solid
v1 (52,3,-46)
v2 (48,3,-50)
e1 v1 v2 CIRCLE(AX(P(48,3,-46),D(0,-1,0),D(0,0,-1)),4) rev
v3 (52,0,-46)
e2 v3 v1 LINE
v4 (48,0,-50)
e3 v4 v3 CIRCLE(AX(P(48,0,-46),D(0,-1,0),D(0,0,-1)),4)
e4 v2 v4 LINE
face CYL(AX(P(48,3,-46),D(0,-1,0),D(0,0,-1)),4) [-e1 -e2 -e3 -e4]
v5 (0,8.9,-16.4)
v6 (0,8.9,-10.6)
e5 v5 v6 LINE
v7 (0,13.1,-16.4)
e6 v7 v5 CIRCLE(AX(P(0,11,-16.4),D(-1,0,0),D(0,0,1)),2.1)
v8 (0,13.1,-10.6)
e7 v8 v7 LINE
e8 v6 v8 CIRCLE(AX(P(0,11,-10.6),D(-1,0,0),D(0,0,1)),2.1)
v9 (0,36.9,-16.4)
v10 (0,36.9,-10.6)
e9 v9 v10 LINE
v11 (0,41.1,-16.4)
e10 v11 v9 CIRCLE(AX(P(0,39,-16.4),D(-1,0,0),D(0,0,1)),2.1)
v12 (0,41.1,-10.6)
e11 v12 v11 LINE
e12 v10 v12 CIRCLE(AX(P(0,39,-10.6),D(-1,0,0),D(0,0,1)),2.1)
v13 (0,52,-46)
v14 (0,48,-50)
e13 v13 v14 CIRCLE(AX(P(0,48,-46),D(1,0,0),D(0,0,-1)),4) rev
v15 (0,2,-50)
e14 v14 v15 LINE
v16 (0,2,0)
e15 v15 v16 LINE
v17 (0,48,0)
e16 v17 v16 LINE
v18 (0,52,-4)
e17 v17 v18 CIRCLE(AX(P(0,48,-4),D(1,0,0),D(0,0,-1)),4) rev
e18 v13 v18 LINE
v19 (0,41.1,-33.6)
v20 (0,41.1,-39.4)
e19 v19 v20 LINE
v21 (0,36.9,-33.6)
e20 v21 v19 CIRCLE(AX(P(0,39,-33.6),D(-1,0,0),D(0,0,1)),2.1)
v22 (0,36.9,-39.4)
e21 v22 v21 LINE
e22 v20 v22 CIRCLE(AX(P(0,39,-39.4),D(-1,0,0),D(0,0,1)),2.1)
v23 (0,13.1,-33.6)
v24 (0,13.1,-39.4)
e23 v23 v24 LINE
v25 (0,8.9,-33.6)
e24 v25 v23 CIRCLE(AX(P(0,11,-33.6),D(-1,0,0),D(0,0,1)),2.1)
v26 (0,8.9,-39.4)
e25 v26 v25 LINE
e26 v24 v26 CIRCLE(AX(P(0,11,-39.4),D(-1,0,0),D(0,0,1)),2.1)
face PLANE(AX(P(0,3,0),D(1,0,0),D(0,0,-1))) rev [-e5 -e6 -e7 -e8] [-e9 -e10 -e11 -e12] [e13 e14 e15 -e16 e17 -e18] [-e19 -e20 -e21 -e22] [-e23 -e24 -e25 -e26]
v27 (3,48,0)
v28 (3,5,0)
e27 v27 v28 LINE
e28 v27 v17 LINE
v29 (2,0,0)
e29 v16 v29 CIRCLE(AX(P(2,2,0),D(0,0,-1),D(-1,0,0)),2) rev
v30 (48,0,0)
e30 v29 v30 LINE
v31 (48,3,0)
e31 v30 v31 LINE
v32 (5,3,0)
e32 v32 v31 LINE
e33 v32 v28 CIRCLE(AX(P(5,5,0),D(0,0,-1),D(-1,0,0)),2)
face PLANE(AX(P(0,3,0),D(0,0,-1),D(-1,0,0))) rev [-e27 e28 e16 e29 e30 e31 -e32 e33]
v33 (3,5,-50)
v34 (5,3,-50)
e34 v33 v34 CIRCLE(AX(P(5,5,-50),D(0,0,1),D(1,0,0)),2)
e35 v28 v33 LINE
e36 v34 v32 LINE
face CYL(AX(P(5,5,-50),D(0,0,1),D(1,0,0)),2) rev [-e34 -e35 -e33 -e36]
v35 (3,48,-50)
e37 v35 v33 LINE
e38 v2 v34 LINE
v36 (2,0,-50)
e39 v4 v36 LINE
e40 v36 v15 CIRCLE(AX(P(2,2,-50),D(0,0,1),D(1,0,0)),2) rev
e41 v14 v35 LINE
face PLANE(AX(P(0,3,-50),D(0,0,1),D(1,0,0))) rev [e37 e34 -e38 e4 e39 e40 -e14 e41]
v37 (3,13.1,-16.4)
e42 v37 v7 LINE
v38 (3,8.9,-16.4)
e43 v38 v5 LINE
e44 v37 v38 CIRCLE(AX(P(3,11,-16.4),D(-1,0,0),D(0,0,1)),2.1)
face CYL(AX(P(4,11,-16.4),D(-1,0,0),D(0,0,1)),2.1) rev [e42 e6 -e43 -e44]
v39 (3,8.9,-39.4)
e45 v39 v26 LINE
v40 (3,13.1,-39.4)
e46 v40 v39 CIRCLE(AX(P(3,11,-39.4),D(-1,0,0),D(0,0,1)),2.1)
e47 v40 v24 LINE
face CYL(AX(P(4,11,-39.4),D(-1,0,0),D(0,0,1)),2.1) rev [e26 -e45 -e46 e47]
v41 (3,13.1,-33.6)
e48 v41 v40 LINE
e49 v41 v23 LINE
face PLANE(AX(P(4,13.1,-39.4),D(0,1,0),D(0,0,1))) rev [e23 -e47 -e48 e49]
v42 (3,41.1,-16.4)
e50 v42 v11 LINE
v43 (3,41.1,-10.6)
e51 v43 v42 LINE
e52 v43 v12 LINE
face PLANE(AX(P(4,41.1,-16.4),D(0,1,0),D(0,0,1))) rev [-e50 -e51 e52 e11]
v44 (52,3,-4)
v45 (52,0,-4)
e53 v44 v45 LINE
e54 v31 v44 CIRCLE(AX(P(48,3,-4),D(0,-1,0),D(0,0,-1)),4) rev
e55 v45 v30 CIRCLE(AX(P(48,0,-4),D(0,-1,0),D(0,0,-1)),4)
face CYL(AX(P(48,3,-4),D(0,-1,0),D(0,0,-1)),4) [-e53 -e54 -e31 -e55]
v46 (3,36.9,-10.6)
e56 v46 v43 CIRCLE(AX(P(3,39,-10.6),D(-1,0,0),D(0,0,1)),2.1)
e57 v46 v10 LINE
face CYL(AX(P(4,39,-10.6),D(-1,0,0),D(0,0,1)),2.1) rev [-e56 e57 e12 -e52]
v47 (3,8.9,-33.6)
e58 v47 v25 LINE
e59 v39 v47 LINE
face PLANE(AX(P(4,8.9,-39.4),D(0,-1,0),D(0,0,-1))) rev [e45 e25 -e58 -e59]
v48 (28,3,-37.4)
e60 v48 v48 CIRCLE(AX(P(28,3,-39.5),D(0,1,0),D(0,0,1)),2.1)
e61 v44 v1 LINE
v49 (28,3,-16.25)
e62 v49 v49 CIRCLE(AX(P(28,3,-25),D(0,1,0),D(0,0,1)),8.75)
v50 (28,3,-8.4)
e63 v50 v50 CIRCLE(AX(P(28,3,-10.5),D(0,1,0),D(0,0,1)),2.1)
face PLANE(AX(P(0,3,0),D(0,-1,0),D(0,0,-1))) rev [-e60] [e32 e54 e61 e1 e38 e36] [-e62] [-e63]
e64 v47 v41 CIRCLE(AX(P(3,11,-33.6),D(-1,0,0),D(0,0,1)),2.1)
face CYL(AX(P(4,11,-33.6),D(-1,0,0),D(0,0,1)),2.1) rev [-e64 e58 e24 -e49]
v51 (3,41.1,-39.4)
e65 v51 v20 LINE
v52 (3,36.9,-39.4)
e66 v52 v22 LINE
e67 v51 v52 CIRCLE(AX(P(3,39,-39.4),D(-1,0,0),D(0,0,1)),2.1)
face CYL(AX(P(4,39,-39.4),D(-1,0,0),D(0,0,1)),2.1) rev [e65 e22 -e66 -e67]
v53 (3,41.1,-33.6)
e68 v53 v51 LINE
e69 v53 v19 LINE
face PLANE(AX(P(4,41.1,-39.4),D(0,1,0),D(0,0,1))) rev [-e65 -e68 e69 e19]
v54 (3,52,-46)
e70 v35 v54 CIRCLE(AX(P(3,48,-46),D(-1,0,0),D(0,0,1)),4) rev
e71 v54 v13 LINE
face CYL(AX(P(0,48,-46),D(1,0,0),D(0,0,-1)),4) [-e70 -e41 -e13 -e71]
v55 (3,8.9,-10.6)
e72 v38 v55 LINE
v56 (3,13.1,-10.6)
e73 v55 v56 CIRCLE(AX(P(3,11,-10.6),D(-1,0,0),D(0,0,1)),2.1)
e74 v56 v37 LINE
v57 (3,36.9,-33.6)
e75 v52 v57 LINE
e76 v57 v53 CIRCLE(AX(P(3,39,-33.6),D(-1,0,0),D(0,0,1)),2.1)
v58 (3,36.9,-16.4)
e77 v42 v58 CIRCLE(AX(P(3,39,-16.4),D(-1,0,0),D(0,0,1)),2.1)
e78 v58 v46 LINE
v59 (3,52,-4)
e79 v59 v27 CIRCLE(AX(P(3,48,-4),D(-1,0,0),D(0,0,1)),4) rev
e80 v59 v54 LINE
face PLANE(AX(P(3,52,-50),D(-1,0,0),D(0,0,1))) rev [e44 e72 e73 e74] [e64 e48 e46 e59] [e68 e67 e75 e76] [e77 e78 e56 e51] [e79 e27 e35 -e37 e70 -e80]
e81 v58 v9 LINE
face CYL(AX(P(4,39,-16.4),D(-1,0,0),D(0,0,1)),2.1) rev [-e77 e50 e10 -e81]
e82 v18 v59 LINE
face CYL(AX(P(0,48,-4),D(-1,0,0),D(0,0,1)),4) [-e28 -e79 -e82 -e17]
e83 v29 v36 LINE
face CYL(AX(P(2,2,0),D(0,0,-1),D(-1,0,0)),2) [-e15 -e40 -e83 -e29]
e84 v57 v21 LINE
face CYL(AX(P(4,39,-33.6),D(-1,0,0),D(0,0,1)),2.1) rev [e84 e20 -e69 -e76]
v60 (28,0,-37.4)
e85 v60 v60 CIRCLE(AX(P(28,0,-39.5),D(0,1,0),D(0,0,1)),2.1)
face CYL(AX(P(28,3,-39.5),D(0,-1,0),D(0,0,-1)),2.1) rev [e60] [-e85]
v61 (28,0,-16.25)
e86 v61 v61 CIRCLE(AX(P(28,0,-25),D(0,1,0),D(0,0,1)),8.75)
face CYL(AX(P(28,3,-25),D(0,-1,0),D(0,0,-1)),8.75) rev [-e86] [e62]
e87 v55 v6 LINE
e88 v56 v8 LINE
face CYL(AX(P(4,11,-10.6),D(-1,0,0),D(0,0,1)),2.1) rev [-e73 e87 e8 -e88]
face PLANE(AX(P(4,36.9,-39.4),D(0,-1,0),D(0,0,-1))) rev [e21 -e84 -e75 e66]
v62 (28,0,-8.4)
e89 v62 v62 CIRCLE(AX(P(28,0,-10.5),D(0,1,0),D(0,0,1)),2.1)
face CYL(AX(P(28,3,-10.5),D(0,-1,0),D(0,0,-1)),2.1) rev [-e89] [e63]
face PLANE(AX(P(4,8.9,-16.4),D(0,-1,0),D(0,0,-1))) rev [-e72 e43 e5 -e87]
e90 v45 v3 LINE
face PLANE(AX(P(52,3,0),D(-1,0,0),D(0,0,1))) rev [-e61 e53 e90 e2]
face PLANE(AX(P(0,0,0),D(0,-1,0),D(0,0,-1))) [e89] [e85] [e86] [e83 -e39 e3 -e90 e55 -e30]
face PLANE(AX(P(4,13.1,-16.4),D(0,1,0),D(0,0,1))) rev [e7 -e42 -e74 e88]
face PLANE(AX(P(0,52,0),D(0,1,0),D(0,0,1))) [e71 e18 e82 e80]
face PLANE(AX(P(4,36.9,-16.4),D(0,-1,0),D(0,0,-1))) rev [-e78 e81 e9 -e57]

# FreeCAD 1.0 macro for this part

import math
import FreeCAD as App
import Part
import Sketcher

V = App.Vector


def edges_at(feature, points):
    """Names of the edges that pass closest to the given points."""
    edges = feature.Shape.Edges
    near = lambda p: min(range(len(edges)), key=lambda i: edges[i].distToShape(Part.Vertex(*p))[0])
    return sorted({f"Edge{near(p) + 1}" for p in points})


def add_polygon(sketch, points):
    """Adds a closed chain of lines whose ends are joined by coincident constraints."""
    first, n = sketch.GeometryCount, len(points)
    for a, b in zip(points, points[1:] + points[:1]):
        sketch.addGeometry(Part.LineSegment(App.Vector(*a, 0), App.Vector(*b, 0)), False)
    for i in range(n):
        sketch.addConstraint(Sketcher.Constraint("Coincident", first + i, 2, first + (i + 1) % n, 1))

doc = App.newDocument("Part")
body = doc.addObject("PartDesign::Body", "Body")

# Sketch on XZ plane
sketch1 = doc.addObject("Sketcher::SketchObject", "Sketch")
body.addObject(sketch1)
sketch1.AttachmentSupport = (doc.XZ_Plane, [""])
sketch1.MapMode = "FlatFace"
add_polygon(sketch1, [(0, -50), (0, 0), (52, 0), (52, -50)])  # lines 0-3
sketch1.addGeometry(Part.Circle(V(28, -10.5, 0), V(0, 0, 1), 2.1), False)  # 4
sketch1.addGeometry(Part.Circle(V(28, -25, 0), V(0, 0, 1), 8.8), False)  # 5
sketch1.addGeometry(Part.Circle(V(28, -39.5, 0), V(0, 0, 1), 2.1), False)  # 6
sketch1.addConstraint(Sketcher.Constraint("Vertical", 0))
sketch1.addConstraint(Sketcher.Constraint("Horizontal", 1))
sketch1.addConstraint(Sketcher.Constraint("Vertical", 2))
sketch1.addConstraint(Sketcher.Constraint("Horizontal", 3))
sketch1.addConstraint(Sketcher.Constraint("Coincident", 0, 2, -1, 1))
sketch1.addConstraint(Sketcher.Constraint("Equal", 4, 6))
sketch1.addConstraint(Sketcher.Constraint("Vertical", 4, 3, 5, 3))
sketch1.addConstraint(Sketcher.Constraint("Vertical", 5, 3, 6, 3))
sketch1.addConstraint(Sketcher.Constraint("Diameter", 4, 4.2))
sketch1.addConstraint(Sketcher.Constraint("Diameter", 5, 17.5))
sketch1.addConstraint(Sketcher.Constraint("DistanceX", 1, 1, 1, 2, 52.0))
sketch1.addConstraint(Sketcher.Constraint("DistanceY", 0, 1, 0, 2, 50.0))
sketch1.addConstraint(Sketcher.Constraint("DistanceX", -1, 1, 4, 3, 28.0))
sketch1.addConstraint(Sketcher.Constraint("DistanceY", 5, 3, -1, 1, 25.0))
sketch1.addConstraint(Sketcher.Constraint("DistanceY", 6, 3, 4, 3, 29.0))
sketch1.addConstraint(Sketcher.Constraint("DistanceY", 4, 3, -1, 1, 10.5))
pad1 = doc.addObject("PartDesign::Pad", "Pad")
body.addObject(pad1)
pad1.Profile = sketch1
pad1.Length = 3
pad1.Reversed = True

# Sketch on XZ plane
sketch2 = doc.addObject("Sketcher::SketchObject", "Sketch001")
body.addObject(sketch2)
sketch2.AttachmentSupport = (doc.XZ_Plane, [""])
sketch2.MapMode = "FlatFace"
sketch2.AttachmentOffset = App.Placement(V(0, 0, -3), App.Rotation())
add_polygon(sketch2, [(0, -50), (0, 0), (3, 0), (3, -50)])  # lines 0-3
sketch2.addConstraint(Sketcher.Constraint("Vertical", 0))
sketch2.addConstraint(Sketcher.Constraint("Horizontal", 1))
sketch2.addConstraint(Sketcher.Constraint("Vertical", 2))
sketch2.addConstraint(Sketcher.Constraint("Horizontal", 3))
sketch2.addConstraint(Sketcher.Constraint("Coincident", 0, 2, -1, 1))
sketch2.addConstraint(Sketcher.Constraint("DistanceX", 1, 1, 1, 2, 3.0))
sketch2.addConstraint(Sketcher.Constraint("DistanceY", 0, 1, 0, 2, 50.0))
pad2 = doc.addObject("PartDesign::Pad", "Pad001")
body.addObject(pad2)
pad2.Profile = sketch2
pad2.Length = 49
pad2.Reversed = True

# Sketch on YZ plane
sketch3 = doc.addObject("Sketcher::SketchObject", "Sketch002")
body.addObject(sketch3)
sketch3.AttachmentSupport = (doc.YZ_Plane, [""])
sketch3.MapMode = "FlatFace"
sketch3.addGeometry(Part.LineSegment(V(13.1, -33.6, 0), V(13.1, -39.4, 0)), False)
sketch3.addGeometry(Part.ArcOfCircle(Part.Circle(V(11, -39.4, 0), V(0, 0, 1), 2.1), math.radians(180), math.radians(360)), False)
sketch3.addGeometry(Part.LineSegment(V(8.9, -39.4, 0), V(8.9, -33.6, 0)), False)
sketch3.addGeometry(Part.ArcOfCircle(Part.Circle(V(11, -33.6, 0), V(0, 0, 1), 2.1), math.radians(0), math.radians(180)), False)
sketch3.addGeometry(Part.LineSegment(V(13.1, -10.6, 0), V(13.1, -16.4, 0)), False)
sketch3.addGeometry(Part.ArcOfCircle(Part.Circle(V(11, -16.4, 0), V(0, 0, 1), 2.1), math.radians(180), math.radians(360)), False)
sketch3.addGeometry(Part.LineSegment(V(8.9, -16.4, 0), V(8.9, -10.6, 0)), False)
sketch3.addGeometry(Part.ArcOfCircle(Part.Circle(V(11, -10.6, 0), V(0, 0, 1), 2.1), math.radians(0), math.radians(180)), False)
sketch3.addGeometry(Part.LineSegment(V(41.1, -10.6, 0), V(41.1, -16.4, 0)), False)
sketch3.addGeometry(Part.ArcOfCircle(Part.Circle(V(39, -16.4, 0), V(0, 0, 1), 2.1), math.radians(180), math.radians(360)), False)
sketch3.addGeometry(Part.LineSegment(V(36.9, -16.4, 0), V(36.9, -10.6, 0)), False)
sketch3.addGeometry(Part.ArcOfCircle(Part.Circle(V(39, -10.6, 0), V(0, 0, 1), 2.1), math.radians(0), math.radians(180)), False)
sketch3.addGeometry(Part.LineSegment(V(41.1, -33.6, 0), V(41.1, -39.4, 0)), False)
sketch3.addGeometry(Part.ArcOfCircle(Part.Circle(V(39, -39.4, 0), V(0, 0, 1), 2.1), math.radians(180), math.radians(360)), False)
sketch3.addGeometry(Part.LineSegment(V(36.9, -39.4, 0), V(36.9, -33.6, 0)), False)
sketch3.addGeometry(Part.ArcOfCircle(Part.Circle(V(39, -33.6, 0), V(0, 0, 1), 2.1), math.radians(0), math.radians(180)), False)
sketch3.addConstraint(Sketcher.Constraint("Tangent", 0, 2, 1, 2))
sketch3.addConstraint(Sketcher.Constraint("Tangent", 1, 1, 2, 1))
sketch3.addConstraint(Sketcher.Constraint("Tangent", 2, 2, 3, 2))
sketch3.addConstraint(Sketcher.Constraint("Tangent", 3, 1, 0, 1))
sketch3.addConstraint(Sketcher.Constraint("Tangent", 4, 2, 5, 2))
sketch3.addConstraint(Sketcher.Constraint("Tangent", 5, 1, 6, 1))
sketch3.addConstraint(Sketcher.Constraint("Tangent", 6, 2, 7, 2))
sketch3.addConstraint(Sketcher.Constraint("Tangent", 7, 1, 4, 1))
sketch3.addConstraint(Sketcher.Constraint("Tangent", 8, 2, 9, 2))
sketch3.addConstraint(Sketcher.Constraint("Tangent", 9, 1, 10, 1))
sketch3.addConstraint(Sketcher.Constraint("Tangent", 10, 2, 11, 2))
sketch3.addConstraint(Sketcher.Constraint("Tangent", 11, 1, 8, 1))
sketch3.addConstraint(Sketcher.Constraint("Tangent", 12, 2, 13, 2))
sketch3.addConstraint(Sketcher.Constraint("Tangent", 13, 1, 14, 1))
sketch3.addConstraint(Sketcher.Constraint("Tangent", 14, 2, 15, 2))
sketch3.addConstraint(Sketcher.Constraint("Tangent", 15, 1, 12, 1))
sketch3.addConstraint(Sketcher.Constraint("Vertical", 0))
sketch3.addConstraint(Sketcher.Constraint("Vertical", 2))
sketch3.addConstraint(Sketcher.Constraint("Vertical", 4))
sketch3.addConstraint(Sketcher.Constraint("Vertical", 6))
sketch3.addConstraint(Sketcher.Constraint("Vertical", 8))
sketch3.addConstraint(Sketcher.Constraint("Vertical", 10))
sketch3.addConstraint(Sketcher.Constraint("Vertical", 12))
sketch3.addConstraint(Sketcher.Constraint("Vertical", 14))
sketch3.addConstraint(Sketcher.Constraint("Equal", 3, 5))
sketch3.addConstraint(Sketcher.Constraint("Equal", 7, 9))
sketch3.addConstraint(Sketcher.Constraint("Equal", 11, 13))
sketch3.addConstraint(Sketcher.Constraint("Horizontal", 5, 3, 9, 3))
sketch3.addConstraint(Sketcher.Constraint("Horizontal", 7, 3, 11, 3))
sketch3.addConstraint(Sketcher.Constraint("Horizontal", 1, 3, 13, 3))
sketch3.addConstraint(Sketcher.Constraint("Horizontal", 3, 3, 15, 3))
sketch3.addConstraint(Sketcher.Constraint("Vertical", 3, 3, 5, 3))
sketch3.addConstraint(Sketcher.Constraint("Vertical", 11, 3, 13, 3))
sketch3.addConstraint(Sketcher.Constraint("Equal", 2, 4))
sketch3.addConstraint(Sketcher.Constraint("Radius", 1, 2.1))
sketch3.addConstraint(Sketcher.Constraint("DistanceY", 0, 2, 0, 1, 5.8))
sketch3.addConstraint(Sketcher.Constraint("DistanceX", -1, 1, 1, 3, 11.0))
sketch3.addConstraint(Sketcher.Constraint("DistanceX", -1, 1, 9, 3, 39.0))
sketch3.addConstraint(Sketcher.Constraint("DistanceY", 1, 3, 5, 3, 23.0))
sketch3.addConstraint(Sketcher.Constraint("DistanceY", 1, 3, -1, 1, 39.4))
pocket1 = doc.addObject("PartDesign::Pocket", "Pocket")
body.addObject(pocket1)
pocket1.Profile = sketch3
pocket1.Length = 4
pocket1.Reversed = True
doc.recompute()

fillet = doc.addObject("PartDesign::Fillet", "Fillet")
body.addObject(fillet)
fillet.Base = (pocket1, edges_at(pocket1, [(3, 3, -25)]))
fillet.Radius = 2
doc.recompute()

fillet2 = doc.addObject("PartDesign::Fillet", "Fillet001")
body.addObject(fillet2)
fillet2.Base = (fillet, edges_at(fillet, [(0, 0, -25)]))
fillet2.Radius = 2
doc.recompute()

fillet3 = doc.addObject("PartDesign::Fillet", "Fillet002")
body.addObject(fillet3)
fillet3.Base = (fillet2, edges_at(fillet2, [(1.5, 52, 0)]))
fillet3.Radius = 4
doc.recompute()

fillet4 = doc.addObject("PartDesign::Fillet", "Fillet003")
body.addObject(fillet4)
fillet4.Base = (fillet3, edges_at(fillet3, [(1.5, 52, -50)]))
fillet4.Radius = 4
doc.recompute()

fillet5 = doc.addObject("PartDesign::Fillet", "Fillet004")
body.addObject(fillet5)
fillet5.Base = (fillet4, edges_at(fillet4, [(52, 1.5, 0)]))
fillet5.Radius = 4
doc.recompute()

fillet6 = doc.addObject("PartDesign::Fillet", "Fillet005")
body.addObject(fillet6)
fillet6.Base = (fillet5, edges_at(fillet5, [(52, 1.5, -50)]))
fillet6.Radius = 4

doc.recompute()
